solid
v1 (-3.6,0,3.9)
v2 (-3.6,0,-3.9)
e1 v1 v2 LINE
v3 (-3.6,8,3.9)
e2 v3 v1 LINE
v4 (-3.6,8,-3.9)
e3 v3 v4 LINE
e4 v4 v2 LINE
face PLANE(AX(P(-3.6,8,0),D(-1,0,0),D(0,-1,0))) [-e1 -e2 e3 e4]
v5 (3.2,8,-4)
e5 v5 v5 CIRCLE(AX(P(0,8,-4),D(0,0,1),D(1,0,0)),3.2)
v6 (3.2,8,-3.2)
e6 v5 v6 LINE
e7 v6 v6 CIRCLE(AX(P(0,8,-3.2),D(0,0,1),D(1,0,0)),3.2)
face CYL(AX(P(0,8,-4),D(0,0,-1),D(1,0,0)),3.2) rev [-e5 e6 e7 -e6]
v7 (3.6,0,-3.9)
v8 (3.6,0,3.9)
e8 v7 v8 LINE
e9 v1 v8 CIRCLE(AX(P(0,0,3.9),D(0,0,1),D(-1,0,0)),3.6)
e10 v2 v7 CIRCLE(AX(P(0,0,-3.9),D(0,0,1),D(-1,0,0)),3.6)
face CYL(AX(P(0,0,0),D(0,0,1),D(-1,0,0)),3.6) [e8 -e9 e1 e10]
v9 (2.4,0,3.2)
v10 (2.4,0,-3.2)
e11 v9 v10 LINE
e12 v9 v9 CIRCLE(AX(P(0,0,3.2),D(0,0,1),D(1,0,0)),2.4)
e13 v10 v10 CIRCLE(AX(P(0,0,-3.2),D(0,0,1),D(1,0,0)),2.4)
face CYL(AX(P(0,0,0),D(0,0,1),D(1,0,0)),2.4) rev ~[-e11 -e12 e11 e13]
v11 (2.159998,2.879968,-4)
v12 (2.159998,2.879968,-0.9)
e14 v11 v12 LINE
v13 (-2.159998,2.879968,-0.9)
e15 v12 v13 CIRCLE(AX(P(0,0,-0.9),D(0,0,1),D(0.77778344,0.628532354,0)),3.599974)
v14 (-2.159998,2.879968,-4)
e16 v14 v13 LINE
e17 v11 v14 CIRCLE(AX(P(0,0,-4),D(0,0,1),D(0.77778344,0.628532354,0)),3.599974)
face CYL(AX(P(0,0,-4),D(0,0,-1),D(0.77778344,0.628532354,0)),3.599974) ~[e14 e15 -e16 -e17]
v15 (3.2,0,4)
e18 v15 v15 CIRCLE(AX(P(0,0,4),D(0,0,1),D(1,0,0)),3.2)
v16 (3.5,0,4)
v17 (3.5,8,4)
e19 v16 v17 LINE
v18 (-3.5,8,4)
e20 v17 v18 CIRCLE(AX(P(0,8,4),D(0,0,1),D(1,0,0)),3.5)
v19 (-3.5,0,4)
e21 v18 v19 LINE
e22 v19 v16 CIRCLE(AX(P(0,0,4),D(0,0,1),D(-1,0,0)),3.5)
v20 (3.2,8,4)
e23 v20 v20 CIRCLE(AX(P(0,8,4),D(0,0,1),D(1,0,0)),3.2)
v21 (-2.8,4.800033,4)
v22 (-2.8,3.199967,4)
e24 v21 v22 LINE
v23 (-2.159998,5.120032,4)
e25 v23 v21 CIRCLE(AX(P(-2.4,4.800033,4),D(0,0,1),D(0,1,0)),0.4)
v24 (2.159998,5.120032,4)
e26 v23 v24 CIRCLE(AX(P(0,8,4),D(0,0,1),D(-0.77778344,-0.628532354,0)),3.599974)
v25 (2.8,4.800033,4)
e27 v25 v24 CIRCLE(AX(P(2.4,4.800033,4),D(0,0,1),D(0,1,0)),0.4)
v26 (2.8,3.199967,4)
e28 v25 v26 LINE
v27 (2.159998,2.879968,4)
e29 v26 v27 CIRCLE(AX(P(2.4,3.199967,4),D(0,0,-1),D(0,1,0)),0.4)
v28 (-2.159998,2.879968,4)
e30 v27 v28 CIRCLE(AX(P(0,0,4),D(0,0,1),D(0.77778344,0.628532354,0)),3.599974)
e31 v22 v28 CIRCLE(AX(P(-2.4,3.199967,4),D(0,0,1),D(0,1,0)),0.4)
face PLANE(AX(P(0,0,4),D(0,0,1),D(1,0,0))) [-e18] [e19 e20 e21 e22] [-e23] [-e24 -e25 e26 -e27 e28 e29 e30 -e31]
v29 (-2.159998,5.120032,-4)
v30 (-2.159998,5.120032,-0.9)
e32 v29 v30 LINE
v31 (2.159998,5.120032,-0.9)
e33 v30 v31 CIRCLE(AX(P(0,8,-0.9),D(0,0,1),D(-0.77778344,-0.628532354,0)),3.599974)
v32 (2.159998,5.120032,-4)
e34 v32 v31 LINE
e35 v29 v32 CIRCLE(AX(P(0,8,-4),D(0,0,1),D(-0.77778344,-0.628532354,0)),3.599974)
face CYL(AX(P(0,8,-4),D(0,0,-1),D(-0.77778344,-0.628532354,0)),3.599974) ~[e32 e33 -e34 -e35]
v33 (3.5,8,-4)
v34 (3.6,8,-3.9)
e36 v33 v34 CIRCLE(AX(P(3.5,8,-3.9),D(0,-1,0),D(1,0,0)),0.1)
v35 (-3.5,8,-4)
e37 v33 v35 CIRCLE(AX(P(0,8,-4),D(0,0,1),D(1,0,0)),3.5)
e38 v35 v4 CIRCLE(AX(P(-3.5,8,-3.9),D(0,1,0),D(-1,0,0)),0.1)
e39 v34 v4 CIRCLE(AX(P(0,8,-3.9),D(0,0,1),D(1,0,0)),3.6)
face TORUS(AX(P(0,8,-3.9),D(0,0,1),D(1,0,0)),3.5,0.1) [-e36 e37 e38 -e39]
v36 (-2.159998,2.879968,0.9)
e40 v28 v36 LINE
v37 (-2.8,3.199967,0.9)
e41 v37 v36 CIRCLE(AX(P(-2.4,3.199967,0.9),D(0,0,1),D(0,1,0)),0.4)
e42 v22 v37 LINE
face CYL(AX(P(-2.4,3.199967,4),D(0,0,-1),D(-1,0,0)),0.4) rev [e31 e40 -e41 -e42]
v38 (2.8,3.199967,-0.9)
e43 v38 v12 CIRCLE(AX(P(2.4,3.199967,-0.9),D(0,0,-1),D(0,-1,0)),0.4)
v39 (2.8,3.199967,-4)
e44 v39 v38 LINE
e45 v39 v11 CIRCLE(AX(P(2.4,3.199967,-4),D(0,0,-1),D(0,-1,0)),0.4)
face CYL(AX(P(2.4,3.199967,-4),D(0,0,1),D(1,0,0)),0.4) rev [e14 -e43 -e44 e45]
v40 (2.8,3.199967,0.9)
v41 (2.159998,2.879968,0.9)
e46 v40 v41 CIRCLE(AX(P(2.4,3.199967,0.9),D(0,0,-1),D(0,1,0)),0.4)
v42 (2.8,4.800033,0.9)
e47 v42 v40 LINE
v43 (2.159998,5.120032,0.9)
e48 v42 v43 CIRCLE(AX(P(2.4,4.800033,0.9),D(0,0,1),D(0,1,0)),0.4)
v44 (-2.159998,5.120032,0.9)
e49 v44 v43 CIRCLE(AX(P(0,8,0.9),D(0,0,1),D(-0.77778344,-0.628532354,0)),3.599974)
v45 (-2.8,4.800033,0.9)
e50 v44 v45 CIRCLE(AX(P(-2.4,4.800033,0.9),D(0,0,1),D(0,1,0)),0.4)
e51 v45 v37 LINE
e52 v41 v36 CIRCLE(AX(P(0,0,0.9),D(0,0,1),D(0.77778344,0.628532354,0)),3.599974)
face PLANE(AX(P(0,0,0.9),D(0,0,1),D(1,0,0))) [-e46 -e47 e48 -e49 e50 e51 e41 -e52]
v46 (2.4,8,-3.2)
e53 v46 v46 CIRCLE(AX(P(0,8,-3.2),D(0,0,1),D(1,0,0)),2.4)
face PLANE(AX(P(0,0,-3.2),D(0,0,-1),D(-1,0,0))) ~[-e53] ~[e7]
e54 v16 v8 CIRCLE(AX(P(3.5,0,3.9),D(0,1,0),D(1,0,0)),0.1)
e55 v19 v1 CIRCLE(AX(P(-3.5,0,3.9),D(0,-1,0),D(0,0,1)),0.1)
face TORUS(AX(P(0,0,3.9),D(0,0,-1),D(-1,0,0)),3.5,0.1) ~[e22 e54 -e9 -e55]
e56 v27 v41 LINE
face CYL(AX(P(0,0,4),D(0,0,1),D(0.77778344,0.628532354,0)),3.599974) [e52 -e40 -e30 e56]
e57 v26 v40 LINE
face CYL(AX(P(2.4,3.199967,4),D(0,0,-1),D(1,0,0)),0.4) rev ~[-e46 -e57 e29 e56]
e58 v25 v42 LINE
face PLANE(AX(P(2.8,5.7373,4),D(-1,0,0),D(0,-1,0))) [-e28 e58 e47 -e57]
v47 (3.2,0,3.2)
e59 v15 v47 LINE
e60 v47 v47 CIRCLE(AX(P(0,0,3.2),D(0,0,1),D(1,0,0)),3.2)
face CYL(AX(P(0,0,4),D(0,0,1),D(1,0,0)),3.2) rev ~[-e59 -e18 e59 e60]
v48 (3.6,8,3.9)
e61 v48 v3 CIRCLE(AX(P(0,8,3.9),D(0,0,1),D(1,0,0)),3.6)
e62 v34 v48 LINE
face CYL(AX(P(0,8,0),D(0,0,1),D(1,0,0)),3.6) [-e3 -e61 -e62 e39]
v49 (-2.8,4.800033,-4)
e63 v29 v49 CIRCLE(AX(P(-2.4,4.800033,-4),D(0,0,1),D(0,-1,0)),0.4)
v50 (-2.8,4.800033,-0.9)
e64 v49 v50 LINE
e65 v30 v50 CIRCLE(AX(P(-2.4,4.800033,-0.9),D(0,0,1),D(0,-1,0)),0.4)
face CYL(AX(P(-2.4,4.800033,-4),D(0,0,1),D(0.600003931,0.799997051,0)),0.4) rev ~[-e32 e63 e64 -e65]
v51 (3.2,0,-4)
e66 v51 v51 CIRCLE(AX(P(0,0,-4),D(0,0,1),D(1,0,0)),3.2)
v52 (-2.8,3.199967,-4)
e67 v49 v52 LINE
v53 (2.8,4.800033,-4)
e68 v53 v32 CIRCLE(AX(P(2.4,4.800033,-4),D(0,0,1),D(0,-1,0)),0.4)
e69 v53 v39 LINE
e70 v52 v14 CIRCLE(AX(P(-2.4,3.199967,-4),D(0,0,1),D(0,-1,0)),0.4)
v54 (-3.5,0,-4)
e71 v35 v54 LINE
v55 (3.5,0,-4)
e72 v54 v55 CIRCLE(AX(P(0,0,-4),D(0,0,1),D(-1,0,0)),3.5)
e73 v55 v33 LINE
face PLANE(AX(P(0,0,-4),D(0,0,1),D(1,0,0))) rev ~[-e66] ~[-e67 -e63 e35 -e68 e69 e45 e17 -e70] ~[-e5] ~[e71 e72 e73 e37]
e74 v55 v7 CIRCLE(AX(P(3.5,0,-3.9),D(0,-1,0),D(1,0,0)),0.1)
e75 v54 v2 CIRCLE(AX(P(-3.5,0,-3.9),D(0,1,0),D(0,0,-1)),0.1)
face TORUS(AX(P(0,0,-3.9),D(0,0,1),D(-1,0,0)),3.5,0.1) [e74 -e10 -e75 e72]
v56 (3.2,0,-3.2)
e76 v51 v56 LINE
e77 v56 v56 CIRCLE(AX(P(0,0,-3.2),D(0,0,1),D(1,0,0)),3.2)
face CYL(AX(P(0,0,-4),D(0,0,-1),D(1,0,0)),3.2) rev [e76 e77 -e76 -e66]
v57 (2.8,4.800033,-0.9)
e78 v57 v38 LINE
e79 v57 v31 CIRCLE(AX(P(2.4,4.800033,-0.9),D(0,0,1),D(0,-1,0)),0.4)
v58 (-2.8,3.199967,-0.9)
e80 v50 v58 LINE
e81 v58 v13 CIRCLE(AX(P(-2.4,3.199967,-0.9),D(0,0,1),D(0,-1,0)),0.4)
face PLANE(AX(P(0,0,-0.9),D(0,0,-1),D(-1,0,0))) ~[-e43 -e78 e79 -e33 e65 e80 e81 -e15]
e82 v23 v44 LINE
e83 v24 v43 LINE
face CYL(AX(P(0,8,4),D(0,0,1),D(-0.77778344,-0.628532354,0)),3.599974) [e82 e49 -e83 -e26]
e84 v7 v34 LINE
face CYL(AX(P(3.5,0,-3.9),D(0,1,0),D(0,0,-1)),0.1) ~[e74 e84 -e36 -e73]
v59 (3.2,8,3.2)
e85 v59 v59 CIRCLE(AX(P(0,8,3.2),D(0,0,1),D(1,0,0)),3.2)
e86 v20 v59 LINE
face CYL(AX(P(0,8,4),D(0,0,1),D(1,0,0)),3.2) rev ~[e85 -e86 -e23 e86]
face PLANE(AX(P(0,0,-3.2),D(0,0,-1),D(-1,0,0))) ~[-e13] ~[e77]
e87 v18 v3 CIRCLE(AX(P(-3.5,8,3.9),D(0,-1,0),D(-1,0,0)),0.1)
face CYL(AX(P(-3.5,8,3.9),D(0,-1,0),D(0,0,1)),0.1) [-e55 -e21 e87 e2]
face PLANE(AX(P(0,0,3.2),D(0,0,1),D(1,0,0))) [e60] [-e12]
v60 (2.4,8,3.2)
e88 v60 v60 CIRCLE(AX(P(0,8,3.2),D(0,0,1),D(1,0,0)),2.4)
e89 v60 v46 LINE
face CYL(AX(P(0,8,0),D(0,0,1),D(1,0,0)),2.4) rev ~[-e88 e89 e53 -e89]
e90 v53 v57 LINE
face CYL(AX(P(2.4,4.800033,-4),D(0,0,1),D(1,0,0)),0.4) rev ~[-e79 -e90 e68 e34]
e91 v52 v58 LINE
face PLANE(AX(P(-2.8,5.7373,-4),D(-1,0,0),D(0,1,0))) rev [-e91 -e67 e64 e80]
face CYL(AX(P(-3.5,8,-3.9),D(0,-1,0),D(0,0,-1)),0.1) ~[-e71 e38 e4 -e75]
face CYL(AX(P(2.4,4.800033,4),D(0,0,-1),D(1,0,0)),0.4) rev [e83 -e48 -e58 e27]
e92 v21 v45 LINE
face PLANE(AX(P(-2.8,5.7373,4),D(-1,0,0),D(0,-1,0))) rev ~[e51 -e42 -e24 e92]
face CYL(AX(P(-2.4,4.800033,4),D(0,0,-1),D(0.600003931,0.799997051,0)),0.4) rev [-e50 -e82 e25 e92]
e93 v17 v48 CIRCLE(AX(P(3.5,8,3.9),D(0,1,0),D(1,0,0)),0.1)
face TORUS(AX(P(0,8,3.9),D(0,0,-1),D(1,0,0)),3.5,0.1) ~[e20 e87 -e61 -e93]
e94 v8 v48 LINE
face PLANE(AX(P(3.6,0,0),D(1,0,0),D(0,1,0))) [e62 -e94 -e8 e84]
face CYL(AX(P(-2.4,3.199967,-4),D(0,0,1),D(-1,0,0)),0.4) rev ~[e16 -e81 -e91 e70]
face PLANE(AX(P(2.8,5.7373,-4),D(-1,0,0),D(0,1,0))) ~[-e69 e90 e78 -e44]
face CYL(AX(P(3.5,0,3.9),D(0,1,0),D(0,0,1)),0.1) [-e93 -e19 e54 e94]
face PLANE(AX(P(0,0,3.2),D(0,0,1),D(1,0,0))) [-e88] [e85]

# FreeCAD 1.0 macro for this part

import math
import FreeCAD as App
import Part
import Sketcher

V = App.Vector
Q = App.Units.Quantity


def edges_at(feature, points):
    """Names of the edges that pass closest to the given points."""
    edges = feature.Shape.Edges
    near = lambda p: min(range(len(edges)), key=lambda i: edges[i].distToShape(Part.Vertex(*p))[0])
    return sorted({f"Edge{near(p) + 1}" for p in points})

doc = App.newDocument("Part")
body = doc.addObject("PartDesign::Body", "Body")

sketch1 = body.newObject("Sketcher::SketchObject", "Sketch")
sketch1.AttachmentSupport = (doc.getObject("XY_Plane"), [""])
sketch1.MapMode = "FlatFace"
sketch1.addGeometry(Part.ArcOfCircle(Part.Circle(V(0, 0, 0), V(0, 0, 1), 3.6), math.radians(180), math.radians(360)), False)
sketch1.addGeometry(Part.LineSegment(V(3.6, 0, 0), V(3.6, 8, 0)), False)
sketch1.addGeometry(Part.ArcOfCircle(Part.Circle(V(0, 8, 0), V(0, 0, 1), 3.6), math.radians(0), math.radians(180)), False)
sketch1.addGeometry(Part.LineSegment(V(-3.6, 8, 0), V(-3.6, 0, 0)), False)
sketch1.addGeometry(Part.Circle(V(0, 0, 0), V(0, 0, 1), 2.4), False)
sketch1.addGeometry(Part.Circle(V(0, 8, 0), V(0, 0, 1), 2.4), False)
sketch1.addConstraint(Sketcher.Constraint("Tangent", 0, 2, 1, 1))
sketch1.addConstraint(Sketcher.Constraint("Tangent", 1, 2, 2, 1))
sketch1.addConstraint(Sketcher.Constraint("Tangent", 2, 2, 3, 1))
sketch1.addConstraint(Sketcher.Constraint("Tangent", 3, 2, 0, 1))
sketch1.addConstraint(Sketcher.Constraint("Vertical", 1))
sketch1.addConstraint(Sketcher.Constraint("Vertical", 3))
sketch1.addConstraint(Sketcher.Constraint("Coincident", 0, 3, -1, 1))
sketch1.addConstraint(Sketcher.Constraint("Coincident", 4, 3, -1, 1))
sketch1.addConstraint(Sketcher.Constraint("Coincident", 5, 3, 2, 3))
sketch1.addConstraint(Sketcher.Constraint("Equal", 4, 5))
sketch1.addConstraint(Sketcher.Constraint("Diameter", 4, Q("4.8 mm")))
sketch1.addConstraint(Sketcher.Constraint("Radius", 0, Q("3.6 mm")))
sketch1.addConstraint(Sketcher.Constraint("DistanceY", 1, 1, 1, 2, Q("8 mm")))
pad1 = body.newObject("PartDesign::Pad", "Pad")
pad1.Profile = sketch1
pad1.Length = 8
pad1.Midplane = True

sketch2 = body.newObject("Sketcher::SketchObject", "Sketch001")
sketch2.AttachmentSupport = (doc.getObject("XY_Plane"), [""])
sketch2.MapMode = "FlatFace"
sketch2.AttachmentOffset = App.Placement(V(0, 0, 4), App.Rotation())
sketch2.addGeometry(Part.Circle(V(0, 0, 0), V(0, 0, 1), 3.2), False)
sketch2.addGeometry(Part.Circle(V(0, 0, 0), V(0, 0, 1), 2.4), False)
sketch2.addGeometry(Part.Circle(V(0, 8, 0), V(0, 0, 1), 3.2), False)
sketch2.addGeometry(Part.Circle(V(0, 8, 0), V(0, 0, 1), 2.4), False)
sketch2.addConstraint(Sketcher.Constraint("Coincident", 0, 3, -1, 1))
sketch2.addConstraint(Sketcher.Constraint("Coincident", 1, 3, -1, 1))
sketch2.addConstraint(Sketcher.Constraint("Coincident", 3, 3, 2, 3))
sketch2.addConstraint(Sketcher.Constraint("Equal", 0, 2))
sketch2.addConstraint(Sketcher.Constraint("Equal", 1, 3))
sketch2.addConstraint(Sketcher.Constraint("PointOnObject", 2, 3, -2))
sketch2.addConstraint(Sketcher.Constraint("Diameter", 0, Q("6.4 mm")))
sketch2.addConstraint(Sketcher.Constraint("Diameter", 1, Q("4.8 mm")))
sketch2.addConstraint(Sketcher.Constraint("DistanceY", -1, 1, 2, 3, Q("8 mm")))
pocket1 = body.newObject("PartDesign::Pocket", "Pocket")
pocket1.Profile = sketch2
pocket1.Length = 0.8

sketch3 = body.newObject("Sketcher::SketchObject", "Sketch002")
sketch3.AttachmentSupport = (doc.getObject("XY_Plane"), [""])
sketch3.MapMode = "FlatFace"
sketch3.AttachmentOffset = App.Placement(V(0, 0, 4), App.Rotation())
sketch3.addGeometry(Part.ArcOfCircle(Part.Circle(V(0, 0, 0), V(0, 0, 1), 3.6), math.radians(39), math.radians(141)), False)
sketch3.addGeometry(Part.LineSegment(V(2.8, 2.3, 0), V(2.8, 5.7, 0)), False)
sketch3.addGeometry(Part.ArcOfCircle(Part.Circle(V(0, 8, 0), V(0, 0, 1), 3.6), math.radians(-141), math.radians(-39)), False)
sketch3.addGeometry(Part.LineSegment(V(-2.8, 5.7, 0), V(-2.8, 2.3, 0)), False)
sketch3.addConstraint(Sketcher.Constraint("Coincident", 0, 1, 1, 1))
sketch3.addConstraint(Sketcher.Constraint("Coincident", 1, 2, 2, 2))
sketch3.addConstraint(Sketcher.Constraint("Coincident", 2, 1, 3, 1))
sketch3.addConstraint(Sketcher.Constraint("Coincident", 3, 2, 0, 2))
sketch3.addConstraint(Sketcher.Constraint("Vertical", 1))
sketch3.addConstraint(Sketcher.Constraint("Vertical", 3))
sketch3.addConstraint(Sketcher.Constraint("Coincident", 0, 3, -1, 1))
sketch3.addConstraint(Sketcher.Constraint("Equal", 0, 2))
sketch3.addConstraint(Sketcher.Constraint("Symmetric", 1, 2, 2, 1, -2))
sketch3.addConstraint(Sketcher.Constraint("Radius", 0, Q("3.6 mm")))
sketch3.addConstraint(Sketcher.Constraint("DistanceY", -1, 1, 2, 3, Q("8 mm")))
sketch3.addConstraint(Sketcher.Constraint("DistanceX", -1, 1, 0, 1, Q("2.8 mm")))
pocket2 = body.newObject("PartDesign::Pocket", "Pocket001")
pocket2.Profile = sketch3
pocket2.Length = 3.1
doc.recompute()

mirrored = body.newObject("PartDesign::Mirrored", "Mirrored")
mirrored.Originals = [pocket1, pocket2]
mirrored.MirrorPlane = (doc.getObject("XY_Plane"), [""])
body.Tip = mirrored
doc.recompute()

fillet = body.newObject("PartDesign::Fillet", "Fillet")
fillet.Base = (mirrored, edges_at(mirrored, [
    (0, 11.6, 4),
    (3.6, 4, 4),
    (-3.6, 4, 4),
    (0, 11.6, -4),
    (-3.6, 4, -4),
    (3.6, 4, -4),
]))
fillet.Radius = 0.1
doc.recompute()

fillet2 = body.newObject("PartDesign::Fillet", "Fillet001")
fillet2.Base = (fillet, edges_at(fillet, [
    (-2.8, 2.263, 2.45),
    (-2.8, 5.737, 2.45),
    (2.8, 2.263, 2.45),
    (2.8, 5.737, 2.45),
    (2.8, 5.737, -2.45),
    (2.8, 2.263, -2.45),
    (-2.8, 2.263, -2.45),
    (-2.8, 5.737, -2.45),
]))
fillet2.Radius = 0.4

doc.recompute()
